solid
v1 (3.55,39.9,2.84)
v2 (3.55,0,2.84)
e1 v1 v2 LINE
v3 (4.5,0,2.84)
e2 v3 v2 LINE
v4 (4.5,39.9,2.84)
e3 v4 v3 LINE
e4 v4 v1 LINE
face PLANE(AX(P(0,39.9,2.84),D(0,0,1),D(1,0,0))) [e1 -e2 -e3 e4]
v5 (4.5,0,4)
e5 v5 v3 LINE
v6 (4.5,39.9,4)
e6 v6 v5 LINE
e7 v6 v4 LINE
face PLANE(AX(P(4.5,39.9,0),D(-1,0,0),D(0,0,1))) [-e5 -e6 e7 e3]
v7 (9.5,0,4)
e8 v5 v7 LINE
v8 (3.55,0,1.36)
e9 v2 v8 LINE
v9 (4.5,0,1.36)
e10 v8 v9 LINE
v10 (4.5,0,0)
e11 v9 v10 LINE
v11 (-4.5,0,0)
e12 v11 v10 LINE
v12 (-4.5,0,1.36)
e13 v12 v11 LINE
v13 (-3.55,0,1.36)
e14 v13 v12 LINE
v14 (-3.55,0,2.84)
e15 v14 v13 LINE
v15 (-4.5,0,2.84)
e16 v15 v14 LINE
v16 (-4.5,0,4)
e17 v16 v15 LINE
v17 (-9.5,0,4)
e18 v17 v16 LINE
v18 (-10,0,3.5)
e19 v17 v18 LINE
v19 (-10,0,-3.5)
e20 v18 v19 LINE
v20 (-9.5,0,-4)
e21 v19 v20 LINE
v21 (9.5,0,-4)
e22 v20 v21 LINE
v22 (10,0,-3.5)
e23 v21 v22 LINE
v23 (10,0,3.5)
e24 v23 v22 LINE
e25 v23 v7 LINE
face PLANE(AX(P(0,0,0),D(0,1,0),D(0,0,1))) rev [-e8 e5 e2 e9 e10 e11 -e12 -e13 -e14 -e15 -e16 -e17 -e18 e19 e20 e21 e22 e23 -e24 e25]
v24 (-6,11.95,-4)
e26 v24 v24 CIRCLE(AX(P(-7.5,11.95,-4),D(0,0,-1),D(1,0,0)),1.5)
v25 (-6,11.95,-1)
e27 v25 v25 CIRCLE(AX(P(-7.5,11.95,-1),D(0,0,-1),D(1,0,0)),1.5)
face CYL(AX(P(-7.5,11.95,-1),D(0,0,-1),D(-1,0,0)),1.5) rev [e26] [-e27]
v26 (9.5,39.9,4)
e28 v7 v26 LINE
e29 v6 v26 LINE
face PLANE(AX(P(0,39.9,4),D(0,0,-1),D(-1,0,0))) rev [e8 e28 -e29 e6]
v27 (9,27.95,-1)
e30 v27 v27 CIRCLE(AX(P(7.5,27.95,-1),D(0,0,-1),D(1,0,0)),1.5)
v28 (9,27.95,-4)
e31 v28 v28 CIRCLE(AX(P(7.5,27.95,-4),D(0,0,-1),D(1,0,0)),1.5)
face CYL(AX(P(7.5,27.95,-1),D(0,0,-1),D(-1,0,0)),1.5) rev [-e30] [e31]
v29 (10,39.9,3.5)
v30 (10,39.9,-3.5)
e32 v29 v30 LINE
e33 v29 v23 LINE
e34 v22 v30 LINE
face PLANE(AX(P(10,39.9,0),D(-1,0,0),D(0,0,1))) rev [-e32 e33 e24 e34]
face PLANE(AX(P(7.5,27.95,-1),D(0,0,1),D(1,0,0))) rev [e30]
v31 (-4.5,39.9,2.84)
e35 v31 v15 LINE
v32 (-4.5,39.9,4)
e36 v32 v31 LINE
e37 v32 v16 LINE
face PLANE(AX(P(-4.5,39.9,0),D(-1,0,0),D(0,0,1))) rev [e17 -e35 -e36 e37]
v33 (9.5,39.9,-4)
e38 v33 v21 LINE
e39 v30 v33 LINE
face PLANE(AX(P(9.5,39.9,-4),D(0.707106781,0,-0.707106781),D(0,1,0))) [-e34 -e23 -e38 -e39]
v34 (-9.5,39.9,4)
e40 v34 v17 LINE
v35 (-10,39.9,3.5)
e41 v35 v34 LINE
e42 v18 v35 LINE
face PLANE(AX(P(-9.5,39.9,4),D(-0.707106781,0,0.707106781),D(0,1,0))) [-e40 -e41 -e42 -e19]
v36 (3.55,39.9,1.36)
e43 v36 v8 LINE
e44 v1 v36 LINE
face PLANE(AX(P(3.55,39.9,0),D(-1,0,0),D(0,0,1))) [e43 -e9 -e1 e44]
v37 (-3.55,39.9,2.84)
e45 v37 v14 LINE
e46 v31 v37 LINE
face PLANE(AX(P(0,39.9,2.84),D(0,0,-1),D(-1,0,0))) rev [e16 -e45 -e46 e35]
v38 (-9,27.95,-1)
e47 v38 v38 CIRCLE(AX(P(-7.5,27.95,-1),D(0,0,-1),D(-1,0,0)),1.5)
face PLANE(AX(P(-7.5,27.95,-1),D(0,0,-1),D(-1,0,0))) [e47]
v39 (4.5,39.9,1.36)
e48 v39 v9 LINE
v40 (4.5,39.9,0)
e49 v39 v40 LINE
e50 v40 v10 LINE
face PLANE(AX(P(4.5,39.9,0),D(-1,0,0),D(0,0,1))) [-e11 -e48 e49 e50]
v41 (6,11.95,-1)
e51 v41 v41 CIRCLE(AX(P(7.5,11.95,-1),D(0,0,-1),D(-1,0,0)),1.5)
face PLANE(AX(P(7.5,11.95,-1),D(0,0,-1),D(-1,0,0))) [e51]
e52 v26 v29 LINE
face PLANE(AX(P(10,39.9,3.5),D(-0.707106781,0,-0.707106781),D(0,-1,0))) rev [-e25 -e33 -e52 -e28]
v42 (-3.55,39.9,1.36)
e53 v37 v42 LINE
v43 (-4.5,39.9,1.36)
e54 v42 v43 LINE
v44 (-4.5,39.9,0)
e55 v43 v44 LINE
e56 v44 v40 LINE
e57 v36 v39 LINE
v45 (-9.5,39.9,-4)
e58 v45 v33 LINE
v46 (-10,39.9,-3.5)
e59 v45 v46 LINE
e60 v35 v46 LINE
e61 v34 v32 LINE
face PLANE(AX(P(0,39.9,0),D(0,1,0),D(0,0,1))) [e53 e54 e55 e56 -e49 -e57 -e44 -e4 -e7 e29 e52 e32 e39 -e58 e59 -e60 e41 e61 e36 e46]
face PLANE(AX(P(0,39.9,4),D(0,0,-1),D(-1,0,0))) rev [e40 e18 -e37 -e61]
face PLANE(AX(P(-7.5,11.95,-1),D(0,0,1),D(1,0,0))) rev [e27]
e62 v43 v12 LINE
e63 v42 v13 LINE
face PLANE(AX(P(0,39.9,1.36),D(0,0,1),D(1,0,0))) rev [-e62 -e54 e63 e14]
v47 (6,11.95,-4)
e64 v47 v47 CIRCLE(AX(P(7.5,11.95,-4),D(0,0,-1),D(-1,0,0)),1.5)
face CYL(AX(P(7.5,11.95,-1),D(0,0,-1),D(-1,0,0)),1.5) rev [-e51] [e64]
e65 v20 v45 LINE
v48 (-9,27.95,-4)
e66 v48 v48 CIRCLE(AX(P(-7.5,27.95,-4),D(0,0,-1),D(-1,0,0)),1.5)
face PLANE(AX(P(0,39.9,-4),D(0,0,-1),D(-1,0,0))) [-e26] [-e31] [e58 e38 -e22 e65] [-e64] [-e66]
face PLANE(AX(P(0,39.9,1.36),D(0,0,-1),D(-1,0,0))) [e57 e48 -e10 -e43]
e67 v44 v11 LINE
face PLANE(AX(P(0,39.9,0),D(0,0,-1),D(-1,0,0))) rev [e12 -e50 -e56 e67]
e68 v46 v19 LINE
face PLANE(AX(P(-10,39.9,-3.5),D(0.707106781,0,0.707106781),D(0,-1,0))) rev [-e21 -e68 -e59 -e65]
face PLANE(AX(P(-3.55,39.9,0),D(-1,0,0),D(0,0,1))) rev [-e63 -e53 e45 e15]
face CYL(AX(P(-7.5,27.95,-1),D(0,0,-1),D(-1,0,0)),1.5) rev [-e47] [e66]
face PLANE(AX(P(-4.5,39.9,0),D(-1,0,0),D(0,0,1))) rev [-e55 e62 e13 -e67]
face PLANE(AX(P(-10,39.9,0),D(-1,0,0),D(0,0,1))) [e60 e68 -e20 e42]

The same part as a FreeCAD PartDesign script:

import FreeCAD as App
import Part
import Sketcher

V = App.Vector
Q = App.Units.Quantity


def edges_at(feature, points):
    """Names of the edges that pass closest to the given points."""
    edges = feature.Shape.Edges
    near = lambda p: min(range(len(edges)), key=lambda i: edges[i].distToShape(Part.Vertex(*p))[0])
    return sorted({f"Edge{near(p) + 1}" for p in points})

doc = App.newDocument("Part")
body = doc.addObject("PartDesign::Body", "Body")

sketch1 = body.newObject("Sketcher::SketchObject", "Sketch")
sketch1.AttachmentSupport = (doc.getObject("XZ_Plane"), [""])
sketch1.MapMode = "FlatFace"
sketch1.addGeometry([
    Part.LineSegment(V(-10, -4, 0), V(-10, 4, 0)),
    Part.LineSegment(V(-10, 4, 0), V(-4.5, 4, 0)),
    Part.LineSegment(V(-4.5, 4, 0), V(-4.5, 2.8, 0)),
    Part.LineSegment(V(-4.5, 2.8, 0), V(-3.5, 2.8, 0)),
    Part.LineSegment(V(-3.5, 2.8, 0), V(-3.5, 1.4, 0)),
    Part.LineSegment(V(-3.5, 1.4, 0), V(-4.5, 1.4, 0)),
    Part.LineSegment(V(-4.5, 1.4, 0), V(-4.5, 0, 0)),
    Part.LineSegment(V(-4.5, 0, 0), V(4.5, 0, 0)),
    Part.LineSegment(V(4.5, 0, 0), V(4.5, 1.4, 0)),
    Part.LineSegment(V(4.5, 1.4, 0), V(3.5, 1.4, 0)),
    Part.LineSegment(V(3.5, 1.4, 0), V(3.5, 2.8, 0)),
    Part.LineSegment(V(3.5, 2.8, 0), V(4.5, 2.8, 0)),
    Part.LineSegment(V(4.5, 2.8, 0), V(4.5, 4, 0)),
    Part.LineSegment(V(4.5, 4, 0), V(10, 4, 0)),
    Part.LineSegment(V(10, 4, 0), V(10, -4, 0)),
    Part.LineSegment(V(10, -4, 0), V(-10, -4, 0)),
], False)
sketch1.addConstraint([
    Sketcher.Constraint("Coincident", 0, 2, 1, 1),
    Sketcher.Constraint("Coincident", 1, 2, 2, 1),
    Sketcher.Constraint("Coincident", 2, 2, 3, 1),
    Sketcher.Constraint("Coincident", 3, 2, 4, 1),
    Sketcher.Constraint("Coincident", 4, 2, 5, 1),
    Sketcher.Constraint("Coincident", 5, 2, 6, 1),
    Sketcher.Constraint("Coincident", 6, 2, 7, 1),
    Sketcher.Constraint("Coincident", 7, 2, 8, 1),
    Sketcher.Constraint("Coincident", 8, 2, 9, 1),
    Sketcher.Constraint("Coincident", 9, 2, 10, 1),
    Sketcher.Constraint("Coincident", 10, 2, 11, 1),
    Sketcher.Constraint("Coincident", 11, 2, 12, 1),
    Sketcher.Constraint("Coincident", 12, 2, 13, 1),
    Sketcher.Constraint("Coincident", 13, 2, 14, 1),
    Sketcher.Constraint("Coincident", 14, 2, 15, 1),
    Sketcher.Constraint("Coincident", 15, 2, 0, 1),
    Sketcher.Constraint("Vertical", 0),
    Sketcher.Constraint("Horizontal", 1),
    Sketcher.Constraint("Vertical", 2),
    Sketcher.Constraint("Horizontal", 3),
    Sketcher.Constraint("Vertical", 4),
    Sketcher.Constraint("Horizontal", 5),
    Sketcher.Constraint("Vertical", 6),
    Sketcher.Constraint("Horizontal", 7),
    Sketcher.Constraint("Vertical", 8),
    Sketcher.Constraint("Horizontal", 9),
    Sketcher.Constraint("Vertical", 10),
    Sketcher.Constraint("Horizontal", 11),
    Sketcher.Constraint("Vertical", 12),
    Sketcher.Constraint("Horizontal", 13),
    Sketcher.Constraint("Vertical", 14),
    Sketcher.Constraint("Horizontal", 15),
    Sketcher.Constraint("Symmetric", 6, 2, 7, 2, -1, 1),
    Sketcher.Constraint("Symmetric", 0, 2, 14, 2, -1, 1),
    Sketcher.Constraint("Symmetric", 4, 2, 9, 2, -2),
    Sketcher.Constraint("Symmetric", 2, 2, 11, 2, -2),
    Sketcher.Constraint("Horizontal", 1, 2, 12, 2),
    Sketcher.Constraint("Vertical", 2, 2, 5, 2),
    Sketcher.Constraint("DistanceX", 7, 1, 7, 2, Q("9 mm")),
    Sketcher.Constraint("DistanceX", 15, 2, 15, 1, Q("20 mm")),
    Sketcher.Constraint("DistanceY", 0, 1, 0, 2, Q("8 mm")),
    Sketcher.Constraint("DistanceX", 3, 1, 3, 2, Q("0.95 mm")),
    Sketcher.Constraint("DistanceY", 2, 2, 2, 1, Q("1.16 mm")),
    Sketcher.Constraint("DistanceY", 4, 2, 4, 1, Q("1.48 mm")),
])
pad1 = body.newObject("PartDesign::Pad", "Pad")
pad1.Profile = sketch1
pad1.Length = 39.9
pad1.Reversed = True

sketch2 = body.newObject("Sketcher::SketchObject", "Sketch001")
sketch2.AttachmentSupport = (doc.getObject("XY_Plane"), [""])
sketch2.MapMode = "FlatFace"
sketch2.AttachmentOffset = App.Placement(V(0, 0, -4), App.Rotation())
sketch2.addGeometry([
    Part.Circle(V(-7.5, 27.9, 0), V(0, 0, 1), 1.5),
    Part.Circle(V(7.5, 27.9, 0), V(0, 0, 1), 1.5),
    Part.Circle(V(-7.5, 11.9, 0), V(0, 0, 1), 1.5),
    Part.Circle(V(7.5, 11.9, 0), V(0, 0, 1), 1.5),
], False)
sketch2.addConstraint([
    Sketcher.Constraint("Equal", 0, 1),
    Sketcher.Constraint("Equal", 1, 2),
    Sketcher.Constraint("Equal", 2, 3),
    Sketcher.Constraint("Symmetric", 0, 3, 1, 3, -2),
    Sketcher.Constraint("Symmetric", 2, 3, 3, 3, -2),
    Sketcher.Constraint("Vertical", 0, 3, 2, 3),
    Sketcher.Constraint("Diameter", 0, Q("3 mm")),
    Sketcher.Constraint("DistanceX", 0, 3, 1, 3, Q("15 mm")),
    Sketcher.Constraint("DistanceY", 2, 3, 0, 3, Q("16 mm")),
    Sketcher.Constraint("DistanceY", -1, 1, 0, 3, Q("27.95 mm")),
])
pocket1 = body.newObject("PartDesign::Pocket", "Pocket")
pocket1.Profile = sketch2
pocket1.Length = 3
pocket1.Reversed = True
doc.recompute()

chamfer = body.newObject("PartDesign::Chamfer", "Chamfer")
chamfer.Base = (pocket1, edges_at(pocket1, [
    (-10, 19.95, 4),
    (-10, 19.95, -4),
    (10, 19.95, -4),
    (10, 19.95, 4),
]))
chamfer.Size = 0.5

doc.recompute()
